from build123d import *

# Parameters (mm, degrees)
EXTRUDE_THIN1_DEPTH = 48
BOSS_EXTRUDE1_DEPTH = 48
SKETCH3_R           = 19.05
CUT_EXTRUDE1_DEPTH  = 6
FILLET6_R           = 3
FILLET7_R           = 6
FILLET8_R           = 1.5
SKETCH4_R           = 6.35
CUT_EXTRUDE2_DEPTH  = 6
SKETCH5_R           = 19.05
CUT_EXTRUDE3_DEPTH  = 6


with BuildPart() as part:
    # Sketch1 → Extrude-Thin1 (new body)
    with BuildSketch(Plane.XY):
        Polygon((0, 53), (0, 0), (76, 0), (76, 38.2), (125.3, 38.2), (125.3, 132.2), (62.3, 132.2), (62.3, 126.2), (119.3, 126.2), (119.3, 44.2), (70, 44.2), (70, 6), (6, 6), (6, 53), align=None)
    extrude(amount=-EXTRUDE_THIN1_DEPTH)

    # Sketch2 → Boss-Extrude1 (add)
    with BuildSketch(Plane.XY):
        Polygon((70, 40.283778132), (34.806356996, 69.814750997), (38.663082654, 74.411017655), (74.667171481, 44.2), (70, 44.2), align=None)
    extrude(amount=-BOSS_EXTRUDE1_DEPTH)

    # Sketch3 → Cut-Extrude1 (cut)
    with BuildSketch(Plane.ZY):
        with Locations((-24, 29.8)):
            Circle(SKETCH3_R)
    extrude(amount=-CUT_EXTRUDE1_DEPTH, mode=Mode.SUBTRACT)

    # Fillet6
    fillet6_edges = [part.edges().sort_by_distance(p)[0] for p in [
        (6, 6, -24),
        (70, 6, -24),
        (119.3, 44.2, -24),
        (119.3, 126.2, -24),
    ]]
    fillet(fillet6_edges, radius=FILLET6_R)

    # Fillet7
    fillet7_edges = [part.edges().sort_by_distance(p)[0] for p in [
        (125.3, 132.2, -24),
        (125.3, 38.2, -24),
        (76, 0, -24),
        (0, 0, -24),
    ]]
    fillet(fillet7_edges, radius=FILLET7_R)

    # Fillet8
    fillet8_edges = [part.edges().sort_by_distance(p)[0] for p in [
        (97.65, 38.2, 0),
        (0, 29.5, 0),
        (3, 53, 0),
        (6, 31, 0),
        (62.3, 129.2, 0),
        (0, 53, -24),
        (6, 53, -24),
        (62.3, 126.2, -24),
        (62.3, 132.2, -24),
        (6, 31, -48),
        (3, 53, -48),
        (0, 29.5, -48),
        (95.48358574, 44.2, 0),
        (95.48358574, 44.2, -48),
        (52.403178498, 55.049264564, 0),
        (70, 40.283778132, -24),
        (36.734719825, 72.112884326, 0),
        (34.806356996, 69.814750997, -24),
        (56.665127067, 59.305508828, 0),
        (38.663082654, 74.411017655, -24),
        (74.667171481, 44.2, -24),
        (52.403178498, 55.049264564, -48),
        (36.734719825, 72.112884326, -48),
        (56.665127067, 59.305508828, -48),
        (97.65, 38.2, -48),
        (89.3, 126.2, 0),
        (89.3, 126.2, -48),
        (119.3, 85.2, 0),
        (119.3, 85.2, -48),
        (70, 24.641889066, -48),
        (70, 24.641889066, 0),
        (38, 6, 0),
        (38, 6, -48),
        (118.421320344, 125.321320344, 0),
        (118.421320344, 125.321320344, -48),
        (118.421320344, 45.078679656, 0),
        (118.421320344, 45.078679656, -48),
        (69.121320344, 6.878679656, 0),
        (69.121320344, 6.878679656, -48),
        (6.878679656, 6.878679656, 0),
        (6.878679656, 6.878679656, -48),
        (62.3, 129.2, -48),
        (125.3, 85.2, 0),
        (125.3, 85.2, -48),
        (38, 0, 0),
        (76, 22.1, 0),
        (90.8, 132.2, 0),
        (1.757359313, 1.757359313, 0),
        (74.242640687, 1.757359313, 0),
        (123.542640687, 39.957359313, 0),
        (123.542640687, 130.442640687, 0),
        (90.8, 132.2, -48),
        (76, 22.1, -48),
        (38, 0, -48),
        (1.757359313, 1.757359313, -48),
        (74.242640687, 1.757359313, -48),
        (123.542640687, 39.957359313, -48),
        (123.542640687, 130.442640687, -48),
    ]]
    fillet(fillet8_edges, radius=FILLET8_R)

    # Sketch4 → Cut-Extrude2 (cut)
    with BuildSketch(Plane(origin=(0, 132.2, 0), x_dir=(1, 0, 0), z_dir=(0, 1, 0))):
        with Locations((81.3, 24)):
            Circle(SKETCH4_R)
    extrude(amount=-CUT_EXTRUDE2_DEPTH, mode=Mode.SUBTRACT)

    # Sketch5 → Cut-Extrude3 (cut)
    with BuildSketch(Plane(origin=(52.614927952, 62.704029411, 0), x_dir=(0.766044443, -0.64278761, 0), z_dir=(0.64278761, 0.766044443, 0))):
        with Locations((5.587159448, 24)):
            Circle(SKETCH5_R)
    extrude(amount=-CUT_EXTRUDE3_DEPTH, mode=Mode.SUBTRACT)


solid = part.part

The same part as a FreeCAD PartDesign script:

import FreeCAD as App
import Part
import Sketcher
Q = App.Units.Quantity


def edges_at(feature, points):
    """Names of the edges that pass closest to the given points."""
    edges = feature.Shape.Edges
    near = lambda p: min(range(len(edges)), key=lambda i: edges[i].distToShape(Part.Vertex(*p))[0])
    return sorted({f"Edge{near(p) + 1}" for p in points})

doc = App.newDocument("Part")
body = doc.addObject("PartDesign::Body", "Body")

sketch1 = doc.addObject("Sketcher::SketchObject", "Sketch")
body.addObject(sketch1)
sketch1.AttachmentSupport = (doc.XY_Plane, [""])
sketch1.MapMode = "FlatFace"
sketch1.addGeometry(Part.LineSegment(App.Vector(0, 53, 0), App.Vector(0, 0, 0)), False)
sketch1.addGeometry(Part.LineSegment(App.Vector(0, 0, 0), App.Vector(76, 0, 0)), False)
sketch1.addGeometry(Part.LineSegment(App.Vector(76, 0, 0), App.Vector(76, 38, 0)), False)
sketch1.addGeometry(Part.LineSegment(App.Vector(76, 38, 0), App.Vector(125, 38, 0)), False)
sketch1.addGeometry(Part.LineSegment(App.Vector(125, 38, 0), App.Vector(125, 132, 0)), False)
sketch1.addGeometry(Part.LineSegment(App.Vector(125, 132, 0), App.Vector(62, 132, 0)), False)
sketch1.addGeometry(Part.LineSegment(App.Vector(62, 132, 0), App.Vector(62, 126, 0)), False)
sketch1.addGeometry(Part.LineSegment(App.Vector(62, 126, 0), App.Vector(119, 126, 0)), False)
sketch1.addGeometry(Part.LineSegment(App.Vector(119, 126, 0), App.Vector(119, 44, 0)), False)
sketch1.addGeometry(Part.LineSegment(App.Vector(119, 44, 0), App.Vector(70, 44, 0)), False)
sketch1.addGeometry(Part.LineSegment(App.Vector(70, 44, 0), App.Vector(70, 6, 0)), False)
sketch1.addGeometry(Part.LineSegment(App.Vector(70, 6, 0), App.Vector(6, 6, 0)), False)
sketch1.addGeometry(Part.LineSegment(App.Vector(6, 6, 0), App.Vector(6, 53, 0)), False)
sketch1.addGeometry(Part.LineSegment(App.Vector(6, 53, 0), App.Vector(0, 53, 0)), False)
sketch1.addConstraint(Sketcher.Constraint("Coincident", 0, 2, 1, 1))
sketch1.addConstraint(Sketcher.Constraint("Coincident", 1, 2, 2, 1))
sketch1.addConstraint(Sketcher.Constraint("Coincident", 2, 2, 3, 1))
sketch1.addConstraint(Sketcher.Constraint("Coincident", 3, 2, 4, 1))
sketch1.addConstraint(Sketcher.Constraint("Coincident", 4, 2, 5, 1))
sketch1.addConstraint(Sketcher.Constraint("Coincident", 5, 2, 6, 1))
sketch1.addConstraint(Sketcher.Constraint("Coincident", 6, 2, 7, 1))
sketch1.addConstraint(Sketcher.Constraint("Coincident", 7, 2, 8, 1))
sketch1.addConstraint(Sketcher.Constraint("Coincident", 8, 2, 9, 1))
sketch1.addConstraint(Sketcher.Constraint("Coincident", 9, 2, 10, 1))
sketch1.addConstraint(Sketcher.Constraint("Coincident", 10, 2, 11, 1))
sketch1.addConstraint(Sketcher.Constraint("Coincident", 11, 2, 12, 1))
sketch1.addConstraint(Sketcher.Constraint("Coincident", 12, 2, 13, 1))
sketch1.addConstraint(Sketcher.Constraint("Coincident", 13, 2, 0, 1))
sketch1.addConstraint(Sketcher.Constraint("Vertical", 0))
sketch1.addConstraint(Sketcher.Constraint("Horizontal", 1))
sketch1.addConstraint(Sketcher.Constraint("Vertical", 2))
sketch1.addConstraint(Sketcher.Constraint("Horizontal", 3))
sketch1.addConstraint(Sketcher.Constraint("Vertical", 4))
sketch1.addConstraint(Sketcher.Constraint("Horizontal", 5))
sketch1.addConstraint(Sketcher.Constraint("Vertical", 6))
sketch1.addConstraint(Sketcher.Constraint("Horizontal", 7))
sketch1.addConstraint(Sketcher.Constraint("Vertical", 8))
sketch1.addConstraint(Sketcher.Constraint("Horizontal", 9))
sketch1.addConstraint(Sketcher.Constraint("Vertical", 10))
sketch1.addConstraint(Sketcher.Constraint("Horizontal", 11))
sketch1.addConstraint(Sketcher.Constraint("Vertical", 12))
sketch1.addConstraint(Sketcher.Constraint("Horizontal", 13))
sketch1.addConstraint(Sketcher.Constraint("Coincident", 0, 2, -1, 1))
sketch1.addConstraint(Sketcher.Constraint("Equal", 3, 9))
sketch1.addConstraint(Sketcher.Constraint("Equal", 13, 6))
sketch1.addConstraint(Sketcher.Constraint("Equal", 2, 10))
sketch1.addConstraint(Sketcher.Constraint("DistanceX", 1, 1, 1, 2, Q("76 mm")))
sketch1.addConstraint(Sketcher.Constraint("DistanceX", 5, 2, 5, 1, Q("63 mm")))
sketch1.addConstraint(Sketcher.Constraint("DistanceX", 7, 1, 7, 2, Q("57 mm")))
sketch1.addConstraint(Sketcher.Constraint("DistanceX", 11, 2, 11, 1, Q("64 mm")))
sketch1.addConstraint(Sketcher.Constraint("DistanceY", 0, 2, 0, 1, Q("53 mm")))
sketch1.addConstraint(Sketcher.Constraint("DistanceY", 4, 1, 4, 2, Q("94 mm")))
sketch1.addConstraint(Sketcher.Constraint("DistanceY", 8, 2, 8, 1, Q("82 mm")))
sketch1.addConstraint(Sketcher.Constraint("DistanceX", 3, 1, 3, 2, Q("49.3 mm")))
sketch1.addConstraint(Sketcher.Constraint("DistanceY", 2, 1, 2, 2, Q("38.2 mm")))
pad1 = doc.addObject("PartDesign::Pad", "Pad")
body.addObject(pad1)
pad1.Profile = sketch1
pad1.Length = 48
pad1.Reversed = True

sketch2 = doc.addObject("Sketcher::SketchObject", "Sketch001")
body.addObject(sketch2)
sketch2.AttachmentSupport = (doc.XY_Plane, [""])
sketch2.MapMode = "FlatFace"
sketch2.addGeometry(Part.LineSegment(App.Vector(34.8, 69.8, 0), App.Vector(70, 40.3, 0)), False)
sketch2.addGeometry(Part.LineSegment(App.Vector(70, 40.3, 0), App.Vector(70, 44.2, 0)), False)
sketch2.addGeometry(Part.LineSegment(App.Vector(70, 44.2, 0), App.Vector(74.7, 44.2, 0)), False)
sketch2.addGeometry(Part.LineSegment(App.Vector(74.7, 44.2, 0), App.Vector(38.7, 74.4, 0)), False)
sketch2.addGeometry(Part.LineSegment(App.Vector(38.7, 74.4, 0), App.Vector(34.8, 69.8, 0)), False)
sketch2.addConstraint(Sketcher.Constraint("Coincident", 0, 2, 1, 1))
sketch2.addConstraint(Sketcher.Constraint("Coincident", 1, 2, 2, 1))
sketch2.addConstraint(Sketcher.Constraint("Coincident", 2, 2, 3, 1))
sketch2.addConstraint(Sketcher.Constraint("Coincident", 3, 2, 4, 1))
sketch2.addConstraint(Sketcher.Constraint("Coincident", 4, 2, 0, 1))
sketch2.addConstraint(Sketcher.Constraint("Vertical", 1))
sketch2.addConstraint(Sketcher.Constraint("Horizontal", 2))
sketch2.addConstraint(Sketcher.Constraint("Parallel", 0, 3))
sketch2.addConstraint(Sketcher.Constraint("Perpendicular", 3, 4))
sketch2.addConstraint(Sketcher.Constraint("Angle", 0, Q("-40 deg")))
sketch2.addConstraint(Sketcher.Constraint("Distance", 3, Q("47 mm")))
sketch2.addConstraint(Sketcher.Constraint("Distance", 4, Q("6 mm")))
sketch2.addConstraint(Sketcher.Constraint("DistanceX", -1, 1, 0, 2, Q("70 mm")))
sketch2.addConstraint(Sketcher.Constraint("DistanceY", -1, 1, 1, 2, Q("44.2 mm")))
sketch2.addConstraint(Sketcher.Constraint("DistanceX", 2, 1, 2, 2, Q("4.667171 mm")))
pad2 = doc.addObject("PartDesign::Pad", "Pad001")
body.addObject(pad2)
pad2.Profile = sketch2
pad2.Length = 48
pad2.Reversed = True

sketch3 = doc.addObject("Sketcher::SketchObject", "Sketch002")
body.addObject(sketch3)
sketch3.AttachmentSupport = (doc.YZ_Plane, [""])
sketch3.MapMode = "FlatFace"
sketch3.addGeometry(Part.Circle(App.Vector(30, -24, 0), App.Vector(0, 0, 1), 19), False)
sketch3.addConstraint(Sketcher.Constraint("Diameter", 0, Q("38.1 mm")))
sketch3.addConstraint(Sketcher.Constraint("DistanceY", 0, 3, -1, 1, Q("24 mm")))
sketch3.addConstraint(Sketcher.Constraint("DistanceX", -1, 1, 0, 3, Q("29.8 mm")))
pocket1 = doc.addObject("PartDesign::Pocket", "Pocket")
body.addObject(pocket1)
pocket1.Profile = sketch3
pocket1.Length = 6
pocket1.Reversed = True
doc.recompute()

fillet = doc.addObject("PartDesign::Fillet", "Fillet")
body.addObject(fillet)
fillet.Base = (pocket1, edges_at(pocket1, [
    (6, 6, -24),
    (70, 6, -24),
    (119.3, 44.2, -24),
    (119.3, 126.2, -24),
]))
fillet.Radius = 3
doc.recompute()

fillet2 = doc.addObject("PartDesign::Fillet", "Fillet001")
body.addObject(fillet2)
fillet2.Base = (fillet, edges_at(fillet, [
    (125.3, 132.2, -24),
    (125.3, 38.2, -24),
    (76, 0, -24),
    (0, 0, -24),
]))
fillet2.Radius = 6
doc.recompute()

fillet3 = doc.addObject("PartDesign::Fillet", "Fillet002")
body.addObject(fillet3)
fillet3.Base = (fillet2, edges_at(fillet2, [
    (97.65, 38.2, 0),
    (0, 29.5, 0),
    (3, 53, 0),
    (6, 31, 0),
    (62.3, 129.2, 0),
    (0, 53, -24),
    (6, 53, -24),
    (62.3, 126.2, -24),
    (62.3, 132.2, -24),
    (6, 31, -48),
    (3, 53, -48),
    (0, 29.5, -48),
    (95.484, 44.2, 0),
    (95.484, 44.2, -48),
    (52.403, 55.049, 0),
    (70, 40.284, -24),
    (36.735, 72.113, 0),
    (34.806, 69.815, -24),
    (56.665, 59.306, 0),
    (38.663, 74.411, -24),
    (74.667, 44.2, -24),
    (52.403, 55.049, -48),
    (36.735, 72.113, -48),
    (56.665, 59.306, -48),
    (97.65, 38.2, -48),
    (89.3, 126.2, 0),
    (89.3, 126.2, -48),
    (119.3, 85.2, 0),
    (119.3, 85.2, -48),
    (70, 24.642, -48),
    (70, 24.642, 0),
    (38, 6, 0),
    (38, 6, -48),
    (118.421, 125.321, 0),
    (118.421, 125.321, -48),
    (118.421, 45.079, 0),
    (118.421, 45.079, -48),
    (69.121, 6.879, 0),
    (69.121, 6.879, -48),
    (6.879, 6.879, 0),
    (6.879, 6.879, -48),
    (62.3, 129.2, -48),
    (125.3, 85.2, 0),
    (125.3, 85.2, -48),
    (38, 0, 0),
    (76, 22.1, 0),
    (90.8, 132.2, 0),
    (1.757, 1.757, 0),
    (74.243, 1.757, 0),
    (123.543, 39.957, 0),
    (123.543, 130.443, 0),
    (90.8, 132.2, -48),
    (76, 22.1, -48),
    (38, 0, -48),
    (1.757, 1.757, -48),
    (74.243, 1.757, -48),
    (123.543, 39.957, -48),
    (123.543, 130.443, -48),
]))
fillet3.Radius = 1.5

sketch4 = doc.addObject("Sketcher::SketchObject", "Sketch003")
body.addObject(sketch4)
sketch4.AttachmentSupport = (doc.XZ_Plane, [""])
sketch4.MapMode = "FlatFace"
sketch4.AttachmentOffset = App.Placement(App.Vector(0, 0, -132.2), App.Rotation())
sketch4.addGeometry(Part.Circle(App.Vector(81, -24, 0), App.Vector(0, 0, 1), 6), False)
sketch4.addConstraint(Sketcher.Constraint("Diameter", 0, Q("12.7 mm")))
sketch4.addConstraint(Sketcher.Constraint("DistanceY", 0, 3, -1, 1, Q("24 mm")))
sketch4.addConstraint(Sketcher.Constraint("DistanceX", -1, 1, 0, 3, Q("81.3 mm")))
pocket2 = doc.addObject("PartDesign::Pocket", "Pocket001")
body.addObject(pocket2)
pocket2.Profile = sketch4
pocket2.Length = 6
pocket2.Reversed = True

sketch5 = doc.addObject("Sketcher::SketchObject", "Sketch004")
body.addObject(sketch5)
sketch5.Placement = App.Placement(App.Vector(52.614928, 62.704029, 0), App.Rotation(App.Vector(0.766044443, -0.64278761, 0), App.Vector(0, 0, -1), App.Vector(0.64278761, 0.766044443, 0), "ZXY"))
sketch5.addGeometry(Part.Circle(App.Vector(6, 24, 0), App.Vector(0, 0, 1), 19), False)
sketch5.addConstraint(Sketcher.Constraint("Diameter", 0, Q("38.1 mm")))
sketch5.addConstraint(Sketcher.Constraint("DistanceY", -1, 1, 0, 3, Q("24 mm")))
sketch5.addConstraint(Sketcher.Constraint("DistanceX", -1, 1, 0, 3, Q("5.587159 mm")))
pocket3 = doc.addObject("PartDesign::Pocket", "Pocket002")
body.addObject(pocket3)
pocket3.Profile = sketch5
pocket3.Length = 6

doc.recompute()
